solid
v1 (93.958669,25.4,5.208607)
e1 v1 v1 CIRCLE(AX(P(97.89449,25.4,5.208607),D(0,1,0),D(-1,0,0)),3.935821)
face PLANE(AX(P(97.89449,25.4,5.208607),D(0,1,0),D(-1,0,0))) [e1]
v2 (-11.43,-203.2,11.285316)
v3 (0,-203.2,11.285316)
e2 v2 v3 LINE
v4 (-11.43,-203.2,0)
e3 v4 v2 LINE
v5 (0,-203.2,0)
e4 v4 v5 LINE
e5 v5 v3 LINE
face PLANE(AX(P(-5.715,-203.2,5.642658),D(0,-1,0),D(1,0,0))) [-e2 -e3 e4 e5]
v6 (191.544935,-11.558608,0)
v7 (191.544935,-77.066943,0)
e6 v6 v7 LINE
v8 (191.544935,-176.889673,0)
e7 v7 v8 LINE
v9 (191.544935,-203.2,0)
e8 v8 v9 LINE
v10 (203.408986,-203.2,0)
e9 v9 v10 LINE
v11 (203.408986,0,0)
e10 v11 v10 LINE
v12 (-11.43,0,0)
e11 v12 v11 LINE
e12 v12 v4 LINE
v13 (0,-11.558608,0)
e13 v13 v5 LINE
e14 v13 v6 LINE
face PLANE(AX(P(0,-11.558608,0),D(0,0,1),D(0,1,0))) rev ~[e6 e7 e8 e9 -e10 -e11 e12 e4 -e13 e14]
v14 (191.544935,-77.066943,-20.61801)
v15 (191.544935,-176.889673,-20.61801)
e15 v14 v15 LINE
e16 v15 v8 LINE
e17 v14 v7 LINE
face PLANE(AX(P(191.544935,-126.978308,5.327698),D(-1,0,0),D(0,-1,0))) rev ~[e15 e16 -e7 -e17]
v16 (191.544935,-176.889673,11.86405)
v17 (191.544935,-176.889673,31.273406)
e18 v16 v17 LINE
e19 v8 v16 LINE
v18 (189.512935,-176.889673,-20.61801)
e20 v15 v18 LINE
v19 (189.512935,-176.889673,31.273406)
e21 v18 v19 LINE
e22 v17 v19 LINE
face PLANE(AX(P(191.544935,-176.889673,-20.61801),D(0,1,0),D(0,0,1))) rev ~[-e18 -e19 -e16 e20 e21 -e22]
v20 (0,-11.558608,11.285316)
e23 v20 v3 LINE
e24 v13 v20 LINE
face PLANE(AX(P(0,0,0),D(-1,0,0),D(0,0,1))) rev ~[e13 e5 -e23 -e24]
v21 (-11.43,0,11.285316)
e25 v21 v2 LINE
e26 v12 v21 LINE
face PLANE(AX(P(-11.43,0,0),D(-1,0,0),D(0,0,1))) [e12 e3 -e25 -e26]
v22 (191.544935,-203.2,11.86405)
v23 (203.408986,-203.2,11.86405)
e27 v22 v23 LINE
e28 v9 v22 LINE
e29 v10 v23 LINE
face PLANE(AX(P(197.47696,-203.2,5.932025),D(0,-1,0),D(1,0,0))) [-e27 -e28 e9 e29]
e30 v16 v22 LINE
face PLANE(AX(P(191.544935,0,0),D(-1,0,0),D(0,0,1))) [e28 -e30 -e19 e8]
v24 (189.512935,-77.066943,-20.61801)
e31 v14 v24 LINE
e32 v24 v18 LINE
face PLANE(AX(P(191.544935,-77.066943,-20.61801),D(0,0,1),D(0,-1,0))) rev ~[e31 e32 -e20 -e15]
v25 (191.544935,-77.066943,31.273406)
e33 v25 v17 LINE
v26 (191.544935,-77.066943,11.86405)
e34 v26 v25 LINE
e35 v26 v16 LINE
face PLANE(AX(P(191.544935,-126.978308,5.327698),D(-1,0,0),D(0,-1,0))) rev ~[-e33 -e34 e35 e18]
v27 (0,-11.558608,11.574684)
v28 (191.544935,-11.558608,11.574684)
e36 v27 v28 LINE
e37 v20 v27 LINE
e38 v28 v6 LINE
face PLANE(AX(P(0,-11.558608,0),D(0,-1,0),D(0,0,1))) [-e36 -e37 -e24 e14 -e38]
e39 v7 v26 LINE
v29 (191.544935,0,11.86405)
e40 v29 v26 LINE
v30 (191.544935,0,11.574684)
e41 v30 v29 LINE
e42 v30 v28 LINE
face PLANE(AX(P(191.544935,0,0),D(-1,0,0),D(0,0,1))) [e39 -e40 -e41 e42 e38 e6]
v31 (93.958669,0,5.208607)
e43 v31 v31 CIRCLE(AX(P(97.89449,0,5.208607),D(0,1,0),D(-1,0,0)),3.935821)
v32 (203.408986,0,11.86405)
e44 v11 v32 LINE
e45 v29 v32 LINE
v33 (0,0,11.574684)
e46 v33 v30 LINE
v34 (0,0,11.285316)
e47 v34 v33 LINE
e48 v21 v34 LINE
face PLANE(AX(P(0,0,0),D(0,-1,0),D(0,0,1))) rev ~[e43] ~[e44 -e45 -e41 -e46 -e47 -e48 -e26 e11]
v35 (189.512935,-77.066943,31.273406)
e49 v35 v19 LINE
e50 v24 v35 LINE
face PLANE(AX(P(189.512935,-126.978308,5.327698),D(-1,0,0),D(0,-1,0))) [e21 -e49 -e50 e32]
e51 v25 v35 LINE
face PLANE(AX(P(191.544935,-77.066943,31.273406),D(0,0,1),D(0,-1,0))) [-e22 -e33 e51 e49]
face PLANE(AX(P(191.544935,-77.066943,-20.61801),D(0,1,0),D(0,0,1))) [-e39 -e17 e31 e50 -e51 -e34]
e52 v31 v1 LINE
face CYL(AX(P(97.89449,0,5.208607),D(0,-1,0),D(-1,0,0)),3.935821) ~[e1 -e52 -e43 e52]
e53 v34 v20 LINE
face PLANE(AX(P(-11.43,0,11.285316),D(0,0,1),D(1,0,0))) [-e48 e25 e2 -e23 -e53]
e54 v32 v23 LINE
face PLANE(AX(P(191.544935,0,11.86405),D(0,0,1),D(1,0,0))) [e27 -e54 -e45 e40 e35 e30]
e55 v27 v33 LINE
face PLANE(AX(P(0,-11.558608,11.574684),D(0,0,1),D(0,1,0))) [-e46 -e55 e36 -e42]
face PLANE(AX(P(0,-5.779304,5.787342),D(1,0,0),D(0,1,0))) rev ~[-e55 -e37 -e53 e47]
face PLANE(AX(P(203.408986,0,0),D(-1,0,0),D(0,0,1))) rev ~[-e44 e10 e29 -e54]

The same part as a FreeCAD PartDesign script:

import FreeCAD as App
import Part
import Sketcher

V = App.Vector
Q = App.Units.Quantity

doc = App.newDocument("Part")
body = doc.addObject("PartDesign::Body", "Body")

# Sketch on XZ plane
sketch1 = body.newObject("Sketcher::SketchObject", "Sketch")
sketch1.AttachmentSupport = (doc.getObject("XZ_Plane"), [""])
sketch1.MapMode = "FlatFace"
sketch1.addGeometry(Part.LineSegment(V(-11, 11, 0), V(-11, 0, 0)), False)
sketch1.addGeometry(Part.LineSegment(V(-11, 0, 0), V(0, 0, 0)), False)
sketch1.addGeometry(Part.LineSegment(V(0, 0, 0), V(0, 11, 0)), False)
sketch1.addGeometry(Part.LineSegment(V(0, 11, 0), V(-11, 11, 0)), False)
sketch1.addConstraint(Sketcher.Constraint("Coincident", 0, 2, 1, 1))
sketch1.addConstraint(Sketcher.Constraint("Coincident", 1, 2, 2, 1))
sketch1.addConstraint(Sketcher.Constraint("Coincident", 2, 2, 3, 1))
sketch1.addConstraint(Sketcher.Constraint("Coincident", 3, 2, 0, 1))
sketch1.addConstraint(Sketcher.Constraint("Vertical", 0))
sketch1.addConstraint(Sketcher.Constraint("Horizontal", 1))
sketch1.addConstraint(Sketcher.Constraint("Vertical", 2))
sketch1.addConstraint(Sketcher.Constraint("Horizontal", 3))
sketch1.addConstraint(Sketcher.Constraint("Coincident", 1, 2, -1, 1))
sketch1.addConstraint(Sketcher.Constraint("DistanceX", 1, 1, 1, 2, Q("0.45 in")))
sketch1.addConstraint(Sketcher.Constraint("DistanceY", 0, 2, 0, 1, Q("11.285316 mm")))
pad1 = body.newObject("PartDesign::Pad", "Pad")
pad1.Profile = sketch1
pad1.Length = Q("8 in")

# Sketch on YZ plane
sketch2 = body.newObject("Sketcher::SketchObject", "Sketch001")
sketch2.AttachmentSupport = (doc.getObject("YZ_Plane"), [""])
sketch2.MapMode = "FlatFace"
sketch2.addGeometry(Part.LineSegment(V(-12, 12, 0), V(-12, 0, 0)), False)
sketch2.addGeometry(Part.LineSegment(V(-12, 0, 0), V(0, 0, 0)), False)
sketch2.addGeometry(Part.LineSegment(V(0, 0, 0), V(0, 12, 0)), False)
sketch2.addGeometry(Part.LineSegment(V(0, 12, 0), V(-12, 12, 0)), False)
sketch2.addConstraint(Sketcher.Constraint("Coincident", 0, 2, 1, 1))
sketch2.addConstraint(Sketcher.Constraint("Coincident", 1, 2, 2, 1))
sketch2.addConstraint(Sketcher.Constraint("Coincident", 2, 2, 3, 1))
sketch2.addConstraint(Sketcher.Constraint("Coincident", 3, 2, 0, 1))
sketch2.addConstraint(Sketcher.Constraint("Vertical", 0))
sketch2.addConstraint(Sketcher.Constraint("Horizontal", 1))
sketch2.addConstraint(Sketcher.Constraint("Vertical", 2))
sketch2.addConstraint(Sketcher.Constraint("Horizontal", 3))
sketch2.addConstraint(Sketcher.Constraint("Coincident", 1, 2, -1, 1))
sketch2.addConstraint(Sketcher.Constraint("DistanceX", 1, 1, 1, 2, Q("11.558608 mm")))
sketch2.addConstraint(Sketcher.Constraint("DistanceY", 0, 2, 0, 1, Q("11.574684 mm")))
pad2 = body.newObject("PartDesign::Pad", "Pad001")
pad2.Profile = sketch2
pad2.Length = Q("8 in")

# Sketch on XZ plane
sketch3 = body.newObject("Sketcher::SketchObject", "Sketch002")
sketch3.AttachmentSupport = (doc.getObject("XZ_Plane"), [""])
sketch3.MapMode = "FlatFace"
sketch3.addGeometry(Part.LineSegment(V(192, 12, 0), V(192, 0, 0)), False)
sketch3.addGeometry(Part.LineSegment(V(192, 0, 0), V(203, 0, 0)), False)
sketch3.addGeometry(Part.LineSegment(V(203, 0, 0), V(203, 12, 0)), False)
sketch3.addGeometry(Part.LineSegment(V(203, 12, 0), V(192, 12, 0)), False)
sketch3.addConstraint(Sketcher.Constraint("Coincident", 0, 2, 1, 1))
sketch3.addConstraint(Sketcher.Constraint("Coincident", 1, 2, 2, 1))
sketch3.addConstraint(Sketcher.Constraint("Coincident", 2, 2, 3, 1))
sketch3.addConstraint(Sketcher.Constraint("Coincident", 3, 2, 0, 1))
sketch3.addConstraint(Sketcher.Constraint("Vertical", 0))
sketch3.addConstraint(Sketcher.Constraint("Horizontal", 1))
sketch3.addConstraint(Sketcher.Constraint("Vertical", 2))
sketch3.addConstraint(Sketcher.Constraint("Horizontal", 3))
sketch3.addConstraint(Sketcher.Constraint("PointOnObject", 0, 2, -1))
sketch3.addConstraint(Sketcher.Constraint("Equal", 3, 0))
sketch3.addConstraint(Sketcher.Constraint("DistanceX", 1, 1, 1, 2, Q("11.864051 mm")))
sketch3.addConstraint(Sketcher.Constraint("DistanceX", -1, 1, 0, 2, Q("191.544935 mm")))
pad3 = body.newObject("PartDesign::Pad", "Pad002")
pad3.Profile = sketch3
pad3.Length = Q("8 in")

# Sketch on YZ plane
sketch4 = body.newObject("Sketcher::SketchObject", "Sketch003")
sketch4.AttachmentSupport = (doc.getObject("YZ_Plane"), [""])
sketch4.MapMode = "FlatFace"
sketch4.AttachmentOffset = App.Placement(V(0, 0, 191.544935), App.Rotation())
sketch4.addGeometry(Part.LineSegment(V(-77, 31, 0), V(-77, -21, 0)), False)
sketch4.addGeometry(Part.LineSegment(V(-77, -21, 0), V(-177, -21, 0)), False)
sketch4.addGeometry(Part.LineSegment(V(-177, -21, 0), V(-177, 31, 0)), False)
sketch4.addGeometry(Part.LineSegment(V(-177, 31, 0), V(-77, 31, 0)), False)
sketch4.addConstraint(Sketcher.Constraint("Coincident", 0, 2, 1, 1))
sketch4.addConstraint(Sketcher.Constraint("Coincident", 1, 2, 2, 1))
sketch4.addConstraint(Sketcher.Constraint("Coincident", 2, 2, 3, 1))
sketch4.addConstraint(Sketcher.Constraint("Coincident", 3, 2, 0, 1))
sketch4.addConstraint(Sketcher.Constraint("Vertical", 0))
sketch4.addConstraint(Sketcher.Constraint("Horizontal", 1))
sketch4.addConstraint(Sketcher.Constraint("Vertical", 2))
sketch4.addConstraint(Sketcher.Constraint("Horizontal", 3))
sketch4.addConstraint(Sketcher.Constraint("DistanceX", 1, 2, 1, 1, Q("99.82273 mm")))
sketch4.addConstraint(Sketcher.Constraint("DistanceY", 0, 2, 0, 1, Q("51.891416 mm")))
sketch4.addConstraint(Sketcher.Constraint("DistanceY", 0, 2, -1, 1, Q("20.61801 mm")))
sketch4.addConstraint(Sketcher.Constraint("DistanceX", 0, 2, -1, 1, Q("77.066943 mm")))
pad4 = body.newObject("PartDesign::Pad", "Pad003")
pad4.Profile = sketch4
pad4.Length = Q("0.08 in")
pad4.Reversed = True

# Sketch on XZ plane
sketch5 = body.newObject("Sketcher::SketchObject", "Sketch004")
sketch5.AttachmentSupport = (doc.getObject("XZ_Plane"), [""])
sketch5.MapMode = "FlatFace"
sketch5.addGeometry(Part.Circle(V(97.9, 5.2, 0), V(0, 0, 1), 3.9), False)
sketch5.addConstraint(Sketcher.Constraint("Diameter", 0, Q("7.871642 mm")))
sketch5.addConstraint(Sketcher.Constraint("DistanceX", -1, 1, 0, 3, Q("97.89449 mm")))
sketch5.addConstraint(Sketcher.Constraint("DistanceY", -1, 1, 0, 3, Q("5.208607 mm")))
pad5 = body.newObject("PartDesign::Pad", "Pad004")
pad5.Profile = sketch5
pad5.Length = Q("1 in")
pad5.Reversed = True

doc.recompute()
